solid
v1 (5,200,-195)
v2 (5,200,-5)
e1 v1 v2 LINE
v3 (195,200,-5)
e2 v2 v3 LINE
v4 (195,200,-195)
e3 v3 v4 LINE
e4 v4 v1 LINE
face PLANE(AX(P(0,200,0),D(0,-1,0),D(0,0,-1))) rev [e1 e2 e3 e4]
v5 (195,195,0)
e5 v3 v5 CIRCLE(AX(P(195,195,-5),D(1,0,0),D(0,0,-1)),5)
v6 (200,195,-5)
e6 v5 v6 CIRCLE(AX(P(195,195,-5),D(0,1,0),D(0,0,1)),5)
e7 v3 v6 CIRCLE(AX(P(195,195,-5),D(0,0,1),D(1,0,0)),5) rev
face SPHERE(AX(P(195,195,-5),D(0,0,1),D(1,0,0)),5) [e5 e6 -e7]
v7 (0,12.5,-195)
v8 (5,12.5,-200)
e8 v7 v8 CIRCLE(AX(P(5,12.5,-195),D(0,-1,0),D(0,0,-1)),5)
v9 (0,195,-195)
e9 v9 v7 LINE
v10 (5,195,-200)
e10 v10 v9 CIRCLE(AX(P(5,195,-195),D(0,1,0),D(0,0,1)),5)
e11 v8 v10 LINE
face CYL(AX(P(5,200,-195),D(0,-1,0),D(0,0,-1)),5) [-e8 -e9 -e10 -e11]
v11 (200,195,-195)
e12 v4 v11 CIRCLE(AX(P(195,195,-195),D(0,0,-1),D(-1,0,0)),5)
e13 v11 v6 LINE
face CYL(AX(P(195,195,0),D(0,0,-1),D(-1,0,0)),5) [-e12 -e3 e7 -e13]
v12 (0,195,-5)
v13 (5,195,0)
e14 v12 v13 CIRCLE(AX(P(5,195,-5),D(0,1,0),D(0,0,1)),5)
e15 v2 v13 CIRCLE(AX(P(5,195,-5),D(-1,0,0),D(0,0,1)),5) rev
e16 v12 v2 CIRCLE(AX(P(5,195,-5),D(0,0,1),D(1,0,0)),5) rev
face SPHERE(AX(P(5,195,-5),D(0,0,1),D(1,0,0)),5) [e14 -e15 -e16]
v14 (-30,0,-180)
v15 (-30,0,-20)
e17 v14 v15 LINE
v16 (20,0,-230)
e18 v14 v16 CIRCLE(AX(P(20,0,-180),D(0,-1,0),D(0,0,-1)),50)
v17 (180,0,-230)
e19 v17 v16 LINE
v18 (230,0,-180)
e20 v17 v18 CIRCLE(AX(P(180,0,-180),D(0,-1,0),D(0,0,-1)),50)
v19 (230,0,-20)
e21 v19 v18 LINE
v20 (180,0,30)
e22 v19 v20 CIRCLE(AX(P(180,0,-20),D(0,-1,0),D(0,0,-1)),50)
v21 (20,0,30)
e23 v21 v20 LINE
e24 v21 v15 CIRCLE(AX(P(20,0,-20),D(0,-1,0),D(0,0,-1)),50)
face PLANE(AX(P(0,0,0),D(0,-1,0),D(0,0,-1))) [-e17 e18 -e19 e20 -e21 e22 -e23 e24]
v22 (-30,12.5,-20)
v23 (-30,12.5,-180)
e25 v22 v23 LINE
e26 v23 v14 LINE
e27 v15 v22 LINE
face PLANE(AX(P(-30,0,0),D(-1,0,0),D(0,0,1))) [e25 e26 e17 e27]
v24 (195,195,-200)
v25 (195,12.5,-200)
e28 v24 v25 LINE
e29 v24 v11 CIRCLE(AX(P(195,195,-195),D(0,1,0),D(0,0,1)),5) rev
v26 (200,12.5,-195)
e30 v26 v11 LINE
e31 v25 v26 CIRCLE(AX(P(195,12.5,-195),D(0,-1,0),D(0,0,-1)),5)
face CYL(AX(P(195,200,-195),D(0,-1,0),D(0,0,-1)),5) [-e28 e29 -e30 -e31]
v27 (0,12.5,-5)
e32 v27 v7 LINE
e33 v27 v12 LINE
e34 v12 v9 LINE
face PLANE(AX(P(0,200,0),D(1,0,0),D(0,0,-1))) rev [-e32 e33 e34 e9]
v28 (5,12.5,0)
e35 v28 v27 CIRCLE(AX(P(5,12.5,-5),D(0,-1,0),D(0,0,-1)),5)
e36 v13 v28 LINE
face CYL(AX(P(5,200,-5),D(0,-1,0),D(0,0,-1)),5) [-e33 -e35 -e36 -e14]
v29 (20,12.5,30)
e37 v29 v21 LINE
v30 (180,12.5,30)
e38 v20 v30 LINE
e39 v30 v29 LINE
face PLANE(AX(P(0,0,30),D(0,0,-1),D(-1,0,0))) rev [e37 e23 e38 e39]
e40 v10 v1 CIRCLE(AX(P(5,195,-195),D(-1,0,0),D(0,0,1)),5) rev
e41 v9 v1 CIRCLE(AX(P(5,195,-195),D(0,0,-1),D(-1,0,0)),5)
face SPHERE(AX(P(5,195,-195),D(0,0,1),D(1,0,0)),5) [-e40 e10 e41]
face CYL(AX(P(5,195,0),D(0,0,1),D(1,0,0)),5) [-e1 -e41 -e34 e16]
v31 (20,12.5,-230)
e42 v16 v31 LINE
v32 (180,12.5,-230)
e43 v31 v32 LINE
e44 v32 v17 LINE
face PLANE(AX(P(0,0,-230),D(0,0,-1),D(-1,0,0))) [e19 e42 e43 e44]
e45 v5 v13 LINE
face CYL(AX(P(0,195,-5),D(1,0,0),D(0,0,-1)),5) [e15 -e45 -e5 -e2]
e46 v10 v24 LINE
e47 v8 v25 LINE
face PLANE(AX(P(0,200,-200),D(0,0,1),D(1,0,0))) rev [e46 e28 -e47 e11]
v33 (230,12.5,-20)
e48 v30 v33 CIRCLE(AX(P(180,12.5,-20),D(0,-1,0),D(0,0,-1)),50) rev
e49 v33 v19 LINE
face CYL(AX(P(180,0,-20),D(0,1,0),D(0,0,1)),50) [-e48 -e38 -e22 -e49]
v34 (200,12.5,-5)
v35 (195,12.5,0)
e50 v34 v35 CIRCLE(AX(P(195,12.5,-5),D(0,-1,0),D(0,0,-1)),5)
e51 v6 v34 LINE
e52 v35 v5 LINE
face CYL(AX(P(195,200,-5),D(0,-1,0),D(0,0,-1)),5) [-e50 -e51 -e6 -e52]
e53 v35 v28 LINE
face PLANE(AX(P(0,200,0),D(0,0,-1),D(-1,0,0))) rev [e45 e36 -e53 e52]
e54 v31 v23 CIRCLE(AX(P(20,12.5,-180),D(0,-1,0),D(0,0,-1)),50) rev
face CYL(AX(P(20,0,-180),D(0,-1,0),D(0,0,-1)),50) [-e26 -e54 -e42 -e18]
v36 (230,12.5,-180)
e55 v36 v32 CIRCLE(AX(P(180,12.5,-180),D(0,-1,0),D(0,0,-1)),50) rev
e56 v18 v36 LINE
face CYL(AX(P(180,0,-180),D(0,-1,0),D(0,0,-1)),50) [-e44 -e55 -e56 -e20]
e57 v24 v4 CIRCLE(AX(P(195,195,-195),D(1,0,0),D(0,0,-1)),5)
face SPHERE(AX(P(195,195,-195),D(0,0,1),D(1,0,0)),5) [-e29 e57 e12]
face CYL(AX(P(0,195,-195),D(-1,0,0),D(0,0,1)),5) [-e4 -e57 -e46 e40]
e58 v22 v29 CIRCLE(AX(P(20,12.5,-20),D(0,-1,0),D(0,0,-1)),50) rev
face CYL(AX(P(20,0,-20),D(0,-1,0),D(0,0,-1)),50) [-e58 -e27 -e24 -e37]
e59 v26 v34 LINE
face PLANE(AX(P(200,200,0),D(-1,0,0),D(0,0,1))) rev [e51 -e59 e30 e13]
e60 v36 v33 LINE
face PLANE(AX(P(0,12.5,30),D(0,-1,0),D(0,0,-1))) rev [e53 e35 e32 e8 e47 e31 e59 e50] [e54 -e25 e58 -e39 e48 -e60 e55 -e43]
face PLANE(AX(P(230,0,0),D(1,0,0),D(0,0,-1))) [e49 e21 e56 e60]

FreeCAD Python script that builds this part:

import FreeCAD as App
import Part
import Sketcher

V = App.Vector
Q = App.Units.Quantity


def edges_at(feature, points):
    """Names of the edges that pass closest to the given points."""
    edges = feature.Shape.Edges
    near = lambda p: min(range(len(edges)), key=lambda i: edges[i].distToShape(Part.Vertex(*p))[0])
    return sorted({f"Edge{near(p) + 1}" for p in points})


def add_polygon(sketch, points):
    """Adds a closed chain of lines whose ends are joined by coincident constraints."""
    first, n = sketch.GeometryCount, len(points)
    for a, b in zip(points, points[1:] + points[:1]):
        sketch.addGeometry(Part.LineSegment(App.Vector(*a, 0), App.Vector(*b, 0)), False)
    for i in range(n):
        sketch.addConstraint(Sketcher.Constraint("Coincident", first + i, 2, first + (i + 1) % n, 1))

doc = App.newDocument("Part")
body = doc.addObject("PartDesign::Body", "Body")

sketch1 = body.newObject("Sketcher::SketchObject", "Sketch")
sketch1.AttachmentSupport = (doc.getObject("XZ_Plane"), [""])
sketch1.MapMode = "FlatFace"
add_polygon(sketch1, [(0, -200), (0, 0), (200, 0), (200, -200)])
sketch1.addConstraint([
    Sketcher.Constraint("Vertical", 0),
    Sketcher.Constraint("Horizontal", 1),
    Sketcher.Constraint("Vertical", 2),
    Sketcher.Constraint("Horizontal", 3),
    Sketcher.Constraint("Coincident", 0, 2, -1, 1),
    Sketcher.Constraint("Equal", 3, 0),
    Sketcher.Constraint("DistanceX", 1, 1, 1, 2, Q("200 mm")),
])
pad1 = body.newObject("PartDesign::Pad", "Pad")
pad1.Profile = sketch1
pad1.Length = 200
pad1.Reversed = True

sketch2 = body.newObject("Sketcher::SketchObject", "Sketch001")
sketch2.AttachmentSupport = (doc.getObject("XY_Plane"), [""])
sketch2.MapMode = "FlatFace"
add_polygon(sketch2, [(0, 12.5), (0, 0), (200, 0), (200, 12.5)])
sketch2.addConstraint([
    Sketcher.Constraint("Vertical", 0),
    Sketcher.Constraint("Horizontal", 1),
    Sketcher.Constraint("Vertical", 2),
    Sketcher.Constraint("Horizontal", 3),
    Sketcher.Constraint("Coincident", 0, 2, -1, 1),
    Sketcher.Constraint("DistanceX", 1, 1, 1, 2, Q("200 mm")),
    Sketcher.Constraint("DistanceY", 0, 2, 0, 1, Q("12.5 mm")),
])
pad2 = body.newObject("PartDesign::Pad", "Pad001")
pad2.Profile = sketch2
pad2.Length = 30

sketch3 = body.newObject("Sketcher::SketchObject", "Sketch002")
sketch3.AttachmentSupport = (doc.getObject("YZ_Plane"), [""])
sketch3.MapMode = "FlatFace"
sketch3.AttachmentOffset = App.Placement(V(0, 0, 200), App.Rotation())
add_polygon(sketch3, [(12.5, 30), (0, 30), (0, -200), (12.5, -200)])
sketch3.addConstraint([
    Sketcher.Constraint("Horizontal", 0),
    Sketcher.Constraint("Vertical", 1),
    Sketcher.Constraint("Horizontal", 2),
    Sketcher.Constraint("Vertical", 3),
    Sketcher.Constraint("PointOnObject", 0, 2, -2),
    Sketcher.Constraint("DistanceY", 1, 2, 1, 1, Q("230 mm")),
    Sketcher.Constraint("DistanceX", 0, 2, 0, 1, Q("12.5 mm")),
    Sketcher.Constraint("DistanceY", -1, 1, 0, 2, Q("30 mm")),
])
pad3 = body.newObject("PartDesign::Pad", "Pad002")
pad3.Profile = sketch3
pad3.Length = 30

sketch4 = body.newObject("Sketcher::SketchObject", "Sketch003")
sketch4.AttachmentSupport = (doc.getObject("XY_Plane"), [""])
sketch4.MapMode = "FlatFace"
sketch4.AttachmentOffset = App.Placement(V(0, 0, -200), App.Rotation())
add_polygon(sketch4, [(230, 12.5), (230, 0), (0, 0), (0, 12.5)])
sketch4.addConstraint([
    Sketcher.Constraint("Vertical", 0),
    Sketcher.Constraint("Horizontal", 1),
    Sketcher.Constraint("Vertical", 2),
    Sketcher.Constraint("Horizontal", 3),
    Sketcher.Constraint("Coincident", 1, 2, -1, 1),
    Sketcher.Constraint("DistanceX", 1, 2, 1, 1, Q("230 mm")),
    Sketcher.Constraint("DistanceY", 0, 2, 0, 1, Q("12.5 mm")),
])
pad4 = body.newObject("PartDesign::Pad", "Pad003")
pad4.Profile = sketch4
pad4.Length = 30
pad4.Reversed = True

sketch5 = body.newObject("Sketcher::SketchObject", "Sketch004")
sketch5.AttachmentSupport = (doc.getObject("YZ_Plane"), [""])
sketch5.MapMode = "FlatFace"
add_polygon(sketch5, [(12.5, -230), (0, -230), (0, 30), (12.5, 30)])
sketch5.addConstraint([
    Sketcher.Constraint("Horizontal", 0),
    Sketcher.Constraint("Vertical", 1),
    Sketcher.Constraint("Horizontal", 2),
    Sketcher.Constraint("Vertical", 3),
    Sketcher.Constraint("PointOnObject", 0, 2, -2),
    Sketcher.Constraint("DistanceY", 1, 1, 1, 2, Q("260 mm")),
    Sketcher.Constraint("DistanceX", 0, 2, 0, 1, Q("12.5 mm")),
    Sketcher.Constraint("DistanceY", 0, 2, -1, 1, Q("230 mm")),
])
pad5 = body.newObject("PartDesign::Pad", "Pad004")
pad5.Profile = sketch5
pad5.Length = 30
pad5.Reversed = True
doc.recompute()

fillet = body.newObject("PartDesign::Fillet", "Fillet")
fillet.Base = (pad5, edges_at(pad5, [
    (230, 6.25, 30),
    (230, 6.25, -230),
    (-30, 6.25, -230),
    (-30, 6.25, 30),
]))
fillet.Radius = 50
doc.recompute()

fillet2 = body.newObject("PartDesign::Fillet", "Fillet001")
fillet2.Base = (fillet, edges_at(fillet, [
    (200, 200, -100),
    (100, 200, -200),
    (0, 200, -100),
    (100, 200, 0),
    (0, 106.25, -200),
    (200, 106.25, -200),
    (200, 106.25, 0),
    (0, 106.25, 0),
]))
fillet2.Radius = 5

doc.recompute()
